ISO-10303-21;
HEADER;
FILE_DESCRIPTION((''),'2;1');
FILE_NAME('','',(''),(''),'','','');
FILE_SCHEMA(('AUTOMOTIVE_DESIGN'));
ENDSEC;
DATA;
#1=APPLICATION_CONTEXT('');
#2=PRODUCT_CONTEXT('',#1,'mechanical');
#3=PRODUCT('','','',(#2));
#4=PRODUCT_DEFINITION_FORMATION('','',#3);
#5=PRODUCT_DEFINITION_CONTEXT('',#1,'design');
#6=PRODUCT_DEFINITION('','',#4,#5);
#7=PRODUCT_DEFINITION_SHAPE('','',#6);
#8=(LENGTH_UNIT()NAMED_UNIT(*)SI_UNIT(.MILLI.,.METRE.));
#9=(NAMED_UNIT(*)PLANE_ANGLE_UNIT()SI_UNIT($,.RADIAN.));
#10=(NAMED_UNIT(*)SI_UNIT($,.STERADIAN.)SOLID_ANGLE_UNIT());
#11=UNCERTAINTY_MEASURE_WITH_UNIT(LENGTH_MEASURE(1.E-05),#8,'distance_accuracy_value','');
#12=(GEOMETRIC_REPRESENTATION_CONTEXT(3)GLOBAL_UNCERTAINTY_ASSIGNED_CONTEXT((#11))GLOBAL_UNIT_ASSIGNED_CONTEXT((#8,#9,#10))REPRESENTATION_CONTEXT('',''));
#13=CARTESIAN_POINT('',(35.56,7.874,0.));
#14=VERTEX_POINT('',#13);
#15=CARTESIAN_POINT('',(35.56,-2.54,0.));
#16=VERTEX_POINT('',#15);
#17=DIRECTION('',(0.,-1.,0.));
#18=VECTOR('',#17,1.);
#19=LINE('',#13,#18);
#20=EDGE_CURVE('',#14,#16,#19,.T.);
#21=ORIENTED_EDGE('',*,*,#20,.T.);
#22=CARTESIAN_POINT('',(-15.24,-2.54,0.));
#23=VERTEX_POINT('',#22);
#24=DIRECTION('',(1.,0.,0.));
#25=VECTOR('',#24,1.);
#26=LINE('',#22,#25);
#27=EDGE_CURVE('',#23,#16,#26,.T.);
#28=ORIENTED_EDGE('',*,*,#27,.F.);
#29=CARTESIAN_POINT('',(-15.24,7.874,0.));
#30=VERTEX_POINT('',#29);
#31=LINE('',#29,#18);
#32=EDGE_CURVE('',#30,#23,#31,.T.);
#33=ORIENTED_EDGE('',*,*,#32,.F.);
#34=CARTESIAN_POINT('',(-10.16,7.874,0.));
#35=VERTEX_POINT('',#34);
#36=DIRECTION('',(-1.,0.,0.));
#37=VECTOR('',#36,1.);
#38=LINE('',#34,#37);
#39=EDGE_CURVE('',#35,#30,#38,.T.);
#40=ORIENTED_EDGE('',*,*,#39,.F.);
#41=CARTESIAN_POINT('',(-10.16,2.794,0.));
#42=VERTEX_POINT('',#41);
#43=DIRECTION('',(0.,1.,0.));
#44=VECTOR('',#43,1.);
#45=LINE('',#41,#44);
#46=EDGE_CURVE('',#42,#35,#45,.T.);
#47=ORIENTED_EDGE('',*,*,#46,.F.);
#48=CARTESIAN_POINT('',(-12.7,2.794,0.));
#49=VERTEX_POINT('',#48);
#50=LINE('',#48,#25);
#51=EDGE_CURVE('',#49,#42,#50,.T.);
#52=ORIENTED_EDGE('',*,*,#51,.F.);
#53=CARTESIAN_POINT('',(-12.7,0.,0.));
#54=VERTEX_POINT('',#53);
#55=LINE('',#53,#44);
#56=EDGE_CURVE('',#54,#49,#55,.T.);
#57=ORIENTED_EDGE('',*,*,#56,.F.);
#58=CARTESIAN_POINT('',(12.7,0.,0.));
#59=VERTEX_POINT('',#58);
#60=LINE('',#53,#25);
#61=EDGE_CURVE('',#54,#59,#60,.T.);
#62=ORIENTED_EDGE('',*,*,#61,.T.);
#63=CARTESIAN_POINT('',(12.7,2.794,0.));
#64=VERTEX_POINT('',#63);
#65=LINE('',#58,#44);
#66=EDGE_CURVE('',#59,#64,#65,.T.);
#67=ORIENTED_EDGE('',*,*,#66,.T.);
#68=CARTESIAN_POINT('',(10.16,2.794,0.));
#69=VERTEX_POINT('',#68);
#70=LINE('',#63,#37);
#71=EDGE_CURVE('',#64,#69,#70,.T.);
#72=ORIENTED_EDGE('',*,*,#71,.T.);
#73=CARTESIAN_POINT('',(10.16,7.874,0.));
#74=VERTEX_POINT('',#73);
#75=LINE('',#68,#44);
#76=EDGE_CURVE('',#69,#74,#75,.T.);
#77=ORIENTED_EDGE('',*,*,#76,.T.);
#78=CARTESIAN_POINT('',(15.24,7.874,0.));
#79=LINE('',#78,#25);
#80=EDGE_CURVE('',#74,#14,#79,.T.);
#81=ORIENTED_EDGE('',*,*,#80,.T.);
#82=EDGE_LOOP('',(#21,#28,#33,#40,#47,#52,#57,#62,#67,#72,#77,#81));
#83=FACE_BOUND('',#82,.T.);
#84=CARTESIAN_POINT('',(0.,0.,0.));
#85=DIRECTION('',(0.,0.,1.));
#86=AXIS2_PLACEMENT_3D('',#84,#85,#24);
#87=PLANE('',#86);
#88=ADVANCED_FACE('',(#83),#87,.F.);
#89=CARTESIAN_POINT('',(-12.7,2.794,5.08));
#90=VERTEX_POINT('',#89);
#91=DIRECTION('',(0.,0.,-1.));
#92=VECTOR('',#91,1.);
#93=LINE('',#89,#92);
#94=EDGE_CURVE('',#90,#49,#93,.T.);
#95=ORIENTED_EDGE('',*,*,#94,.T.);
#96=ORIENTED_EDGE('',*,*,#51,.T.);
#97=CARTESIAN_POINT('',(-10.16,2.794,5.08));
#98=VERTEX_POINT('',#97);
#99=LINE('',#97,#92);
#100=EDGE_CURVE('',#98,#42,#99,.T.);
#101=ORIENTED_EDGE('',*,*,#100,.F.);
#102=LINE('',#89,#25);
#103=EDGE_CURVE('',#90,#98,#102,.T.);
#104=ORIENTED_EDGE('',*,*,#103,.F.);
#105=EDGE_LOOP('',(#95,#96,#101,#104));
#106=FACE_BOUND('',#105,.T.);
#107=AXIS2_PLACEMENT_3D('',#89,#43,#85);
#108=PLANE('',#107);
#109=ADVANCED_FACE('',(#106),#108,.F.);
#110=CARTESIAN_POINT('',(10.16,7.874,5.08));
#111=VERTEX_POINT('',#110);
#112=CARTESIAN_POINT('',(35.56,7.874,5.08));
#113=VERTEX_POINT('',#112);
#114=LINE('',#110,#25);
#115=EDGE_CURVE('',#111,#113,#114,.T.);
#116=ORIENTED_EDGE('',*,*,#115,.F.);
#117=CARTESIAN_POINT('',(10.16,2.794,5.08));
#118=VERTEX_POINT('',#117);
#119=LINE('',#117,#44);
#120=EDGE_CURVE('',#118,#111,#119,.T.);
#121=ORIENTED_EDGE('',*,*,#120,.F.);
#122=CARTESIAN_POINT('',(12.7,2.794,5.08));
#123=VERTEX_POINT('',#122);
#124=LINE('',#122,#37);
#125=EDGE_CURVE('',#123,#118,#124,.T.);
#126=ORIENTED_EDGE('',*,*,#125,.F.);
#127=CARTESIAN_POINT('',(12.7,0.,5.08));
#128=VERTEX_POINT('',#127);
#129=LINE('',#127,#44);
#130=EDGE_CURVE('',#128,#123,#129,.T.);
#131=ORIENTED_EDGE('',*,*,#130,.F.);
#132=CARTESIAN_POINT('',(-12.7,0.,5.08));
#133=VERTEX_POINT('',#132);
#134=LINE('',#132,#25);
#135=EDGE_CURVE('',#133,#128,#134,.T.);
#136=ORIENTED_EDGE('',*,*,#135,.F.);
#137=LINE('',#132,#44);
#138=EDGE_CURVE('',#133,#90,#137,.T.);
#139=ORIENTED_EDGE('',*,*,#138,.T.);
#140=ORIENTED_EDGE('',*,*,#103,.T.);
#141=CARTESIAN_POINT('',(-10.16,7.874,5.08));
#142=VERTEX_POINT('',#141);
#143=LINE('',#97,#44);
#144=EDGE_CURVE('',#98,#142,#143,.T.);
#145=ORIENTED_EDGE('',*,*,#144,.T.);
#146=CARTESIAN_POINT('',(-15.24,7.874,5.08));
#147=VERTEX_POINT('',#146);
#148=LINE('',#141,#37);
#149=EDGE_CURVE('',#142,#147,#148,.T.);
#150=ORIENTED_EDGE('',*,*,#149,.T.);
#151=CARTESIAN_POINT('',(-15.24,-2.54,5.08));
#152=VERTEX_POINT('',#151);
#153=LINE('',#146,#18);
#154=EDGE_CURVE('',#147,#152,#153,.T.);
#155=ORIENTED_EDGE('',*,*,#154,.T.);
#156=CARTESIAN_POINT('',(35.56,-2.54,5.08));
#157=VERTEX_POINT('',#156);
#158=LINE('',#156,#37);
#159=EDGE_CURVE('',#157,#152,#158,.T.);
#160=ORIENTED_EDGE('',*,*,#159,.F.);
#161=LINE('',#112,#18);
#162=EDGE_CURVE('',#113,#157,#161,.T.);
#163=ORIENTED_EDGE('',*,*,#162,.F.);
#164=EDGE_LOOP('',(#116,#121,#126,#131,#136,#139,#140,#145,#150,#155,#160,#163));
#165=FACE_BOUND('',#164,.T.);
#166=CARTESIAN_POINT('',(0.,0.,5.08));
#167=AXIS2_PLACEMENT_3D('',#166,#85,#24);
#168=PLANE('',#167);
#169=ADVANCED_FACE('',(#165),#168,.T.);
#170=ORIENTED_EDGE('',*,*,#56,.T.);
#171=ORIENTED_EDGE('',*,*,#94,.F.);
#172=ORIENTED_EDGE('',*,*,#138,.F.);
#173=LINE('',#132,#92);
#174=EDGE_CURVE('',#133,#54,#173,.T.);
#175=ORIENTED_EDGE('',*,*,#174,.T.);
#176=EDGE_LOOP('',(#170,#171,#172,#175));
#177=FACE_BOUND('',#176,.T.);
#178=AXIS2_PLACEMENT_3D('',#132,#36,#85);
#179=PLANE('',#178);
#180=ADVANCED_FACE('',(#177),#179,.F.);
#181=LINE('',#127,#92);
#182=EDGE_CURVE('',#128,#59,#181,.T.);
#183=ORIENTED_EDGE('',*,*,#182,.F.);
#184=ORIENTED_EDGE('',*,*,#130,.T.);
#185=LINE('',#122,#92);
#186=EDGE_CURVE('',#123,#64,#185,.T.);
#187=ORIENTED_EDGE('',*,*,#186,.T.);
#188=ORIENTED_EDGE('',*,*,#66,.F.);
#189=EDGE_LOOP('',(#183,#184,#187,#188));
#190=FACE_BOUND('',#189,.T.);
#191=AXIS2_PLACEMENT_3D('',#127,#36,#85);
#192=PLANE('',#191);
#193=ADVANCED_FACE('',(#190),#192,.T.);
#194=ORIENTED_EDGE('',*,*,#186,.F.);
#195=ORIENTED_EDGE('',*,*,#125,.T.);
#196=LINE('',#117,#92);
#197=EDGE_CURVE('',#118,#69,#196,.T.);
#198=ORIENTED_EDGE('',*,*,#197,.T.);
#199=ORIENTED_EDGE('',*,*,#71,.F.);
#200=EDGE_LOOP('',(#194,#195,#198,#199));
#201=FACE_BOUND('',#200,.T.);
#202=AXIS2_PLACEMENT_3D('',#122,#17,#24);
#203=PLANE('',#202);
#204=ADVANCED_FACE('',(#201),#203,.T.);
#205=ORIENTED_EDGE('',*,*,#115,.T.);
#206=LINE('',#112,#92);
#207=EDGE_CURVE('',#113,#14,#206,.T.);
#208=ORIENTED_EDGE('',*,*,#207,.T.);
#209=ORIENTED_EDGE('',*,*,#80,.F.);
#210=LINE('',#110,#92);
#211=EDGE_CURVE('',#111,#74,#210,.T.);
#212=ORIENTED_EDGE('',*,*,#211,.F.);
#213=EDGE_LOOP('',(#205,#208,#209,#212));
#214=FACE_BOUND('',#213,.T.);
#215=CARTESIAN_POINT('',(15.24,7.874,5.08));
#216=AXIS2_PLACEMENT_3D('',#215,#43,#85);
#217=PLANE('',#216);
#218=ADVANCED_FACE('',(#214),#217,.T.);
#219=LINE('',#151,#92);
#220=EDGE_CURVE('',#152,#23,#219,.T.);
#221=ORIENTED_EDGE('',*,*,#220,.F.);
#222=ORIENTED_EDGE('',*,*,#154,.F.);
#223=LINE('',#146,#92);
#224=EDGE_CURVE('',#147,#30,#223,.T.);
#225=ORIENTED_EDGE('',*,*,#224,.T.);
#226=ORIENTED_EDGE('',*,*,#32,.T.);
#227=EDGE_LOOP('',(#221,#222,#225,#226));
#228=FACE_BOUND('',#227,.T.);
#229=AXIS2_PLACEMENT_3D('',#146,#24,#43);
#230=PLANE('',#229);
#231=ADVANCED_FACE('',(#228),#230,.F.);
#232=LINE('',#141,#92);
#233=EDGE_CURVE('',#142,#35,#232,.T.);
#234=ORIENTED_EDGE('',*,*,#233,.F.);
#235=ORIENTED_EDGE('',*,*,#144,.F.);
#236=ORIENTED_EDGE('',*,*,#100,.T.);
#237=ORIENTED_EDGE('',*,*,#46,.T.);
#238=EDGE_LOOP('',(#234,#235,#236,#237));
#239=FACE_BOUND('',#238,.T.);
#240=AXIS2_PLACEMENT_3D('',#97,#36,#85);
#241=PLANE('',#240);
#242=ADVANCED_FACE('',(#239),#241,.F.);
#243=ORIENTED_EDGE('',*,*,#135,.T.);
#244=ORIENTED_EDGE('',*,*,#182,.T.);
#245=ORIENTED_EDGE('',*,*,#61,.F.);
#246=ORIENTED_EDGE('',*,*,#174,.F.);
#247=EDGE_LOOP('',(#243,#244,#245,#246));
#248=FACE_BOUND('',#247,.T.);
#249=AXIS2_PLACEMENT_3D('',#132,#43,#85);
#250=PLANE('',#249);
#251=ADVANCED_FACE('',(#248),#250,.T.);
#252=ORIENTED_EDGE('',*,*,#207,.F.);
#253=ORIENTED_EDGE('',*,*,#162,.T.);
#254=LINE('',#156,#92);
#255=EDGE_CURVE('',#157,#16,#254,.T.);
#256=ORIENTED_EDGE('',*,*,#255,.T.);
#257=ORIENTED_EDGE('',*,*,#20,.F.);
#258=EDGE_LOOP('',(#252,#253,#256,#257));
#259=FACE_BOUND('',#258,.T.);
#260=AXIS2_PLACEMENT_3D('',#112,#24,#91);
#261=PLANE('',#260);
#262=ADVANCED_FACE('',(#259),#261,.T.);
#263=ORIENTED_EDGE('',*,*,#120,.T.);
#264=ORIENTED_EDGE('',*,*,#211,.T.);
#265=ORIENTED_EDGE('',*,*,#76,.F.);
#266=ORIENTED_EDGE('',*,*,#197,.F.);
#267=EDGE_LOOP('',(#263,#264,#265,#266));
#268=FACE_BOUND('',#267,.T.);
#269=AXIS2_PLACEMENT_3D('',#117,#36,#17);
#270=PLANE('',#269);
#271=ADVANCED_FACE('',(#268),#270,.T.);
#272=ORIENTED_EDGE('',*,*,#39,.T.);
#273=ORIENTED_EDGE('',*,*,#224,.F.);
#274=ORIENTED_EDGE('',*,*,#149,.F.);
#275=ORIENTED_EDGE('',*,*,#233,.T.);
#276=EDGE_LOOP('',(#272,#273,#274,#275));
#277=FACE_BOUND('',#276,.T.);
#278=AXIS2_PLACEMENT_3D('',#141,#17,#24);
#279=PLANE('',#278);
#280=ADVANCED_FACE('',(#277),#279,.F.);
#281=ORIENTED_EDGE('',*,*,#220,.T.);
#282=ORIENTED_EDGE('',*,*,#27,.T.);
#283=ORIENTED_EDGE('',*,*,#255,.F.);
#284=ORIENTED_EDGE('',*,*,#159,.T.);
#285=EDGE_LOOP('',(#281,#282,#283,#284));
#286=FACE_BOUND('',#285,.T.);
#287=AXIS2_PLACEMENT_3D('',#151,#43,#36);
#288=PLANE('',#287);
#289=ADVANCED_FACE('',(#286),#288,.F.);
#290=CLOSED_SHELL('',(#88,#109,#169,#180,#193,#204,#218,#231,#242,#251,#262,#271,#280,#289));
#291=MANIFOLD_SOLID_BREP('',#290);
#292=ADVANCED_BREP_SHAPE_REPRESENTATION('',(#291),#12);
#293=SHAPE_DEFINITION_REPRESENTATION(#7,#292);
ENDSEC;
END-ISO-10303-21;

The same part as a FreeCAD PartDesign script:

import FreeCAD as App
import Part
import Sketcher
from FreeCAD import Vector
Q = App.Units.Quantity

doc = App.newDocument("Part")
params = doc.addObject("Spreadsheet::Sheet", "Params")
for row, (alias, value) in enumerate([
    ("sketch1_width", "1 in"),
    ("sketch1_width2", "2 in"),
    ("sketch1_width3", "0.1 in"),
    ("sketch1_height", "0.11 in"),
    ("sketch1_height2", "0.41 in"),
    ("pad1_length", "0.2 in"),
], start=1):
    params.set(f"A{row}", alias)
    params.set(f"B{row}", "=" + value)
    params.setAlias(f"B{row}", alias)

body = doc.addObject("PartDesign::Body", "Body")

# Sketch on XY plane
sketch1 = body.newObject("Sketcher::SketchObject", "Sketch")
sketch1.AttachmentSupport = (doc.getObject("XY_Plane"), [""])
sketch1.MapMode = "FlatFace"
sketch1.addGeometry([
    Part.LineSegment(Vector(12.7, 0, 0), Vector(-12.7, 0, 0)),  # 0
    Part.LineSegment(Vector(-12.7, 0, 0), Vector(-12.7, 2.8, 0)),  # 1
    Part.LineSegment(Vector(-12.7, 2.8, 0), Vector(-10.2, 2.8, 0)),  # 2
    Part.LineSegment(Vector(-10.2, 2.8, 0), Vector(-10.2, 7.9, 0)),  # 3
    Part.LineSegment(Vector(-10.2, 7.9, 0), Vector(-15.2, 7.9, 0)),  # 4
    Part.LineSegment(Vector(-15.2, 7.9, 0), Vector(-15.2, -2.5, 0)),  # 5
    Part.LineSegment(Vector(-15.2, -2.5, 0), Vector(35.6, -2.5, 0)),  # 6
    Part.LineSegment(Vector(35.6, -2.5, 0), Vector(35.6, 7.9, 0)),  # 7
    Part.LineSegment(Vector(35.6, 7.9, 0), Vector(10.2, 7.9, 0)),  # 8
    Part.LineSegment(Vector(10.2, 7.9, 0), Vector(10.2, 2.8, 0)),  # 9
    Part.LineSegment(Vector(10.2, 2.8, 0), Vector(12.7, 2.8, 0)),  # 10
    Part.LineSegment(Vector(12.7, 2.8, 0), Vector(12.7, 0, 0)),  # 11
], False)
sketch1.addConstraint([
    Sketcher.Constraint("Coincident", 0, 2, 1, 1),
    Sketcher.Constraint("Coincident", 1, 2, 2, 1),
    Sketcher.Constraint("Coincident", 2, 2, 3, 1),
    Sketcher.Constraint("Coincident", 3, 2, 4, 1),
    Sketcher.Constraint("Coincident", 4, 2, 5, 1),
    Sketcher.Constraint("Coincident", 5, 2, 6, 1),
    Sketcher.Constraint("Coincident", 6, 2, 7, 1),
    Sketcher.Constraint("Coincident", 7, 2, 8, 1),
    Sketcher.Constraint("Coincident", 8, 2, 9, 1),
    Sketcher.Constraint("Coincident", 9, 2, 10, 1),
    Sketcher.Constraint("Coincident", 10, 2, 11, 1),
    Sketcher.Constraint("Coincident", 11, 2, 0, 1),
    Sketcher.Constraint("Horizontal", 0),
    Sketcher.Constraint("Vertical", 1),
    Sketcher.Constraint("Horizontal", 2),
    Sketcher.Constraint("Vertical", 3),
    Sketcher.Constraint("Horizontal", 4),
    Sketcher.Constraint("Vertical", 5),
    Sketcher.Constraint("Horizontal", 6),
    Sketcher.Constraint("Vertical", 7),
    Sketcher.Constraint("Horizontal", 8),
    Sketcher.Constraint("Vertical", 9),
    Sketcher.Constraint("Horizontal", 10),
    Sketcher.Constraint("Vertical", 11),
    Sketcher.Constraint("Symmetric", 0, 2, 11, 2, -1, 1),
    Sketcher.Constraint("Symmetric", 3, 2, 8, 2, -2),
    Sketcher.Constraint("Horizontal", 2, 2, 9, 2),
    Sketcher.Constraint("Equal", 0, 8),
    Sketcher.Constraint("Equal", 4, 3),
    Sketcher.Constraint("DistanceX", 0, 2, 0, 1, Q("1 in")),
    Sketcher.Constraint("DistanceX", 6, 1, 6, 2, Q("2 in")),
    Sketcher.Constraint("DistanceX", 2, 1, 2, 2, Q("0.1 in")),
    Sketcher.Constraint("DistanceY", 1, 1, 1, 2, Q("0.11 in")),
    Sketcher.Constraint("DistanceY", 5, 2, 5, 1, Q("0.41 in")),
])
sketch1.setExpression("Constraints[29]", "Params.sketch1_width")
sketch1.setExpression("Constraints[30]", "Params.sketch1_width2")
sketch1.setExpression("Constraints[31]", "Params.sketch1_width3")
sketch1.setExpression("Constraints[32]", "Params.sketch1_height")
sketch1.setExpression("Constraints[33]", "Params.sketch1_height2")
pad1 = body.newObject("PartDesign::Pad", "Pad")
pad1.Profile = sketch1
pad1.setExpression("Length", "Params.pad1_length")

doc.recompute()
